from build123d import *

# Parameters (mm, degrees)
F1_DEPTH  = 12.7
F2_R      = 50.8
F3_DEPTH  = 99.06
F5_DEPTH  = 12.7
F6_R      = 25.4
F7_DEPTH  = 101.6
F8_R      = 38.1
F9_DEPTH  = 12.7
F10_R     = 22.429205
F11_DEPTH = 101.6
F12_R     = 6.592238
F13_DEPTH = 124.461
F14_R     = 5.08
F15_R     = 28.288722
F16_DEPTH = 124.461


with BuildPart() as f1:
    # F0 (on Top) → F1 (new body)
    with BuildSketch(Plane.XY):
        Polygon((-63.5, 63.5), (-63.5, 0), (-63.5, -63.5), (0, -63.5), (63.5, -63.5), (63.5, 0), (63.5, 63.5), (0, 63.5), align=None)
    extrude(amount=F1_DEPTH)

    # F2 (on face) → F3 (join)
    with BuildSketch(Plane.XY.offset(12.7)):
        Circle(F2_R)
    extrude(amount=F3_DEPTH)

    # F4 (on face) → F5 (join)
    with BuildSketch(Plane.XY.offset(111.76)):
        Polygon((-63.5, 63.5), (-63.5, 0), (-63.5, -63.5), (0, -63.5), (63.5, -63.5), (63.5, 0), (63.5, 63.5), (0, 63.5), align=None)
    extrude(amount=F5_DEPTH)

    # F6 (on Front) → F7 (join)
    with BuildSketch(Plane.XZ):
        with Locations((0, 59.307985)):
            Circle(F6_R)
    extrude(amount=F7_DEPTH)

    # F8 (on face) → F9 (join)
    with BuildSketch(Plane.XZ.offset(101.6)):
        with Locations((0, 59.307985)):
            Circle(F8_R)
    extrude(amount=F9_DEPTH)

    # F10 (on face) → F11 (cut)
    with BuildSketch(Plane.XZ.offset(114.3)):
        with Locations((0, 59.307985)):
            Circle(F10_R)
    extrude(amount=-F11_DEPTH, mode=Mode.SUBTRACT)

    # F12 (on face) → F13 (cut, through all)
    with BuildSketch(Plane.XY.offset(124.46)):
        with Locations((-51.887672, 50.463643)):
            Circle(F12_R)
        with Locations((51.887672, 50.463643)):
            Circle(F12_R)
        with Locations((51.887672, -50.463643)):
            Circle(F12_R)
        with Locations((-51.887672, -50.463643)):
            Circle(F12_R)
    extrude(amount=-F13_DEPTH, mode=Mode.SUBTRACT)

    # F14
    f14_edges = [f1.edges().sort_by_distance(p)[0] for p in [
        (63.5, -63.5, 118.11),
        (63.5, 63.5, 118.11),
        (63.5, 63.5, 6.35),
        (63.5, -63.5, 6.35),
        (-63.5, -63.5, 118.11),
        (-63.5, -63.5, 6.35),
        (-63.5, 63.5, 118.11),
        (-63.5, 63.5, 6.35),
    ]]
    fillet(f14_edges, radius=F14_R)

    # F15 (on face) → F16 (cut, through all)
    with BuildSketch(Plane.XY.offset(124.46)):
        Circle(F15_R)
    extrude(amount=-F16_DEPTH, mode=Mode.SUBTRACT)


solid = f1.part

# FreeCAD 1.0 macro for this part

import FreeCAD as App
import Part
import Sketcher
from FreeCAD import Vector
Q = App.Units.Quantity


def edges_at(feature, points):
    """Names of the edges that pass closest to the given points."""
    edges = feature.Shape.Edges
    near = lambda p: min(range(len(edges)), key=lambda i: edges[i].distToShape(Part.Vertex(*p))[0])
    return sorted({f"Edge{near(p) + 1}" for p in points})


def add_polygon(sketch, points):
    """Adds a closed chain of lines whose ends are joined by coincident constraints."""
    first, n = sketch.GeometryCount, len(points)
    for a, b in zip(points, points[1:] + points[:1]):
        sketch.addGeometry(Part.LineSegment(App.Vector(*a, 0), App.Vector(*b, 0)), False)
    for i in range(n):
        sketch.addConstraint(Sketcher.Constraint("Coincident", first + i, 2, first + (i + 1) % n, 1))

doc = App.newDocument("Part")
body = doc.addObject("PartDesign::Body", "Body")

# Sketch on XY plane
sketch1 = body.newObject("Sketcher::SketchObject", "Sketch")
sketch1.AttachmentSupport = (doc.getObject("XY_Plane"), [""])
sketch1.MapMode = "FlatFace"
add_polygon(sketch1, [(-64, 64), (-64, -64), (64, -64), (64, 64)])  # lines 0-3
sketch1.addConstraint([
    Sketcher.Constraint("Vertical", 0),
    Sketcher.Constraint("Horizontal", 1),
    Sketcher.Constraint("Vertical", 2),
    Sketcher.Constraint("Horizontal", 3),
    Sketcher.Constraint("Symmetric", 0, 2, 2, 2, -1, 1),
    Sketcher.Constraint("Equal", 3, 0),
    Sketcher.Constraint("DistanceX", 1, 1, 1, 2, Q("5 in")),
])
pad1 = body.newObject("PartDesign::Pad", "Pad")
pad1.Profile = sketch1
pad1.Length = Q("0.5 in")

# Sketch on XY plane
sketch2 = body.newObject("Sketcher::SketchObject", "Sketch001")
sketch2.AttachmentSupport = (doc.getObject("XY_Plane"), [""])
sketch2.MapMode = "FlatFace"
sketch2.AttachmentOffset = App.Placement(Vector(0, 0, 0.5 * 25.4), App.Rotation())
sketch2.addGeometry(Part.Circle(Vector(0, 0, 0), Vector(0, 0, 1), 51), False)
sketch2.addConstraint([
    Sketcher.Constraint("Coincident", 0, 3, -1, 1),
    Sketcher.Constraint("Diameter", 0, Q("4 in")),
])
pad2 = body.newObject("PartDesign::Pad", "Pad001")
pad2.Profile = sketch2
pad2.Length = Q("3.9 in")

# Sketch on XY plane
sketch3 = body.newObject("Sketcher::SketchObject", "Sketch002")
sketch3.AttachmentSupport = (doc.getObject("XY_Plane"), [""])
sketch3.MapMode = "FlatFace"
sketch3.AttachmentOffset = App.Placement(Vector(0, 0, 4.4 * 25.4), App.Rotation())
add_polygon(sketch3, [(-64, 64), (-64, -64), (64, -64), (64, 64)])  # lines 0-3
sketch3.addConstraint([
    Sketcher.Constraint("Vertical", 0),
    Sketcher.Constraint("Horizontal", 1),
    Sketcher.Constraint("Vertical", 2),
    Sketcher.Constraint("Horizontal", 3),
    Sketcher.Constraint("Symmetric", 0, 2, 2, 2, -1, 1),
    Sketcher.Constraint("Equal", 3, 0),
    Sketcher.Constraint("DistanceX", 1, 1, 1, 2, Q("5 in")),
])
pad3 = body.newObject("PartDesign::Pad", "Pad002")
pad3.Profile = sketch3
pad3.Length = Q("0.5 in")

# Sketch on XZ plane
sketch4 = body.newObject("Sketcher::SketchObject", "Sketch003")
sketch4.AttachmentSupport = (doc.getObject("XZ_Plane"), [""])
sketch4.MapMode = "FlatFace"
sketch4.addGeometry(Part.Circle(Vector(0, 59, 0), Vector(0, 0, 1), 25), False)
sketch4.addConstraint([
    Sketcher.Constraint("PointOnObject", 0, 3, -2),
    Sketcher.Constraint("Diameter", 0, Q("2 in")),
    Sketcher.Constraint("DistanceY", -1, 1, 0, 3, 59.307985),
])
pad4 = body.newObject("PartDesign::Pad", "Pad003")
pad4.Profile = sketch4
pad4.Length = Q("4 in")

# Sketch on XZ plane
sketch5 = body.newObject("Sketcher::SketchObject", "Sketch004")
sketch5.AttachmentSupport = (doc.getObject("XZ_Plane"), [""])
sketch5.MapMode = "FlatFace"
sketch5.AttachmentOffset = App.Placement(Vector(0, 0, 4 * 25.4), App.Rotation())
sketch5.addGeometry(Part.Circle(Vector(0, 59, 0), Vector(0, 0, 1), 38), False)
sketch5.addConstraint([
    Sketcher.Constraint("PointOnObject", 0, 3, -2),
    Sketcher.Constraint("Diameter", 0, Q("3 in")),
    Sketcher.Constraint("DistanceY", -1, 1, 0, 3, 59.307985),
])
pad5 = body.newObject("PartDesign::Pad", "Pad004")
pad5.Profile = sketch5
pad5.Length = Q("0.5 in")

# Sketch on XZ plane
sketch6 = body.newObject("Sketcher::SketchObject", "Sketch005")
sketch6.AttachmentSupport = (doc.getObject("XZ_Plane"), [""])
sketch6.MapMode = "FlatFace"
sketch6.AttachmentOffset = App.Placement(Vector(0, 0, 4.5 * 25.4), App.Rotation())
sketch6.addGeometry(Part.Circle(Vector(0, 59, 0), Vector(0, 0, 1), 22), False)
sketch6.addConstraint([
    Sketcher.Constraint("PointOnObject", 0, 3, -2),
    Sketcher.Constraint("Diameter", 0, 44.85841),
    Sketcher.Constraint("DistanceY", -1, 1, 0, 3, 59.307985),
])
pocket1 = body.newObject("PartDesign::Pocket", "Pocket")
pocket1.Profile = sketch6
pocket1.Length = Q("4 in")

# Sketch on XY plane
sketch7 = body.newObject("Sketcher::SketchObject", "Sketch006")
sketch7.AttachmentSupport = (doc.getObject("XY_Plane"), [""])
sketch7.MapMode = "FlatFace"
sketch7.AttachmentOffset = App.Placement(Vector(0, 0, 4.9 * 25.4), App.Rotation())
sketch7.addGeometry([
    Part.Circle(Vector(-52, 50, 0), Vector(0, 0, 1), 7),
    Part.Circle(Vector(52, 50, 0), Vector(0, 0, 1), 7),
    Part.Circle(Vector(52, -50, 0), Vector(0, 0, 1), 7),
    Part.Circle(Vector(-52, -50, 0), Vector(0, 0, 1), 7),
], False)
sketch7.addConstraint([
    Sketcher.Constraint("Equal", 0, 1),
    Sketcher.Constraint("Equal", 1, 2),
    Sketcher.Constraint("Equal", 2, 3),
    Sketcher.Constraint("Symmetric", 0, 3, 2, 3, -1, 1),
    Sketcher.Constraint("Symmetric", 1, 3, 3, 3, -1, 1),
    Sketcher.Constraint("Symmetric", 0, 3, 1, 3, -2),
    Sketcher.Constraint("Diameter", 0, 13.184476),
    Sketcher.Constraint("DistanceX", 0, 3, -1, 1, 51.887672),
    Sketcher.Constraint("DistanceY", -1, 1, 0, 3, 50.463643),
])
pocket2 = body.newObject("PartDesign::Pocket", "Pocket001")
pocket2.Profile = sketch7
pocket2.Type = "ThroughAll"
doc.recompute()

fillet = body.newObject("PartDesign::Fillet", "Fillet")
fillet.Base = (pocket2, edges_at(pocket2, [
    (63.5, -63.5, 118.11),
    (63.5, 63.5, 118.11),
    (63.5, 63.5, 6.35),
    (63.5, -63.5, 6.35),
    (-63.5, -63.5, 118.11),
    (-63.5, -63.5, 6.35),
    (-63.5, 63.5, 118.11),
    (-63.5, 63.5, 6.35),
]))
fillet.Radius = Q("0.2 in")

# Sketch on XY plane
sketch8 = body.newObject("Sketcher::SketchObject", "Sketch007")
sketch8.AttachmentSupport = (doc.getObject("XY_Plane"), [""])
sketch8.MapMode = "FlatFace"
sketch8.AttachmentOffset = App.Placement(Vector(0, 0, 4.9 * 25.4), App.Rotation())
sketch8.addGeometry(Part.Circle(Vector(0, 0, 0), Vector(0, 0, 1), 28), False)
sketch8.addConstraint([
    Sketcher.Constraint("Coincident", 0, 3, -1, 1),
    Sketcher.Constraint("Diameter", 0, 56.577444),
])
pocket3 = body.newObject("PartDesign::Pocket", "Pocket002")
pocket3.Profile = sketch8
pocket3.Type = "ThroughAll"

doc.recompute()
